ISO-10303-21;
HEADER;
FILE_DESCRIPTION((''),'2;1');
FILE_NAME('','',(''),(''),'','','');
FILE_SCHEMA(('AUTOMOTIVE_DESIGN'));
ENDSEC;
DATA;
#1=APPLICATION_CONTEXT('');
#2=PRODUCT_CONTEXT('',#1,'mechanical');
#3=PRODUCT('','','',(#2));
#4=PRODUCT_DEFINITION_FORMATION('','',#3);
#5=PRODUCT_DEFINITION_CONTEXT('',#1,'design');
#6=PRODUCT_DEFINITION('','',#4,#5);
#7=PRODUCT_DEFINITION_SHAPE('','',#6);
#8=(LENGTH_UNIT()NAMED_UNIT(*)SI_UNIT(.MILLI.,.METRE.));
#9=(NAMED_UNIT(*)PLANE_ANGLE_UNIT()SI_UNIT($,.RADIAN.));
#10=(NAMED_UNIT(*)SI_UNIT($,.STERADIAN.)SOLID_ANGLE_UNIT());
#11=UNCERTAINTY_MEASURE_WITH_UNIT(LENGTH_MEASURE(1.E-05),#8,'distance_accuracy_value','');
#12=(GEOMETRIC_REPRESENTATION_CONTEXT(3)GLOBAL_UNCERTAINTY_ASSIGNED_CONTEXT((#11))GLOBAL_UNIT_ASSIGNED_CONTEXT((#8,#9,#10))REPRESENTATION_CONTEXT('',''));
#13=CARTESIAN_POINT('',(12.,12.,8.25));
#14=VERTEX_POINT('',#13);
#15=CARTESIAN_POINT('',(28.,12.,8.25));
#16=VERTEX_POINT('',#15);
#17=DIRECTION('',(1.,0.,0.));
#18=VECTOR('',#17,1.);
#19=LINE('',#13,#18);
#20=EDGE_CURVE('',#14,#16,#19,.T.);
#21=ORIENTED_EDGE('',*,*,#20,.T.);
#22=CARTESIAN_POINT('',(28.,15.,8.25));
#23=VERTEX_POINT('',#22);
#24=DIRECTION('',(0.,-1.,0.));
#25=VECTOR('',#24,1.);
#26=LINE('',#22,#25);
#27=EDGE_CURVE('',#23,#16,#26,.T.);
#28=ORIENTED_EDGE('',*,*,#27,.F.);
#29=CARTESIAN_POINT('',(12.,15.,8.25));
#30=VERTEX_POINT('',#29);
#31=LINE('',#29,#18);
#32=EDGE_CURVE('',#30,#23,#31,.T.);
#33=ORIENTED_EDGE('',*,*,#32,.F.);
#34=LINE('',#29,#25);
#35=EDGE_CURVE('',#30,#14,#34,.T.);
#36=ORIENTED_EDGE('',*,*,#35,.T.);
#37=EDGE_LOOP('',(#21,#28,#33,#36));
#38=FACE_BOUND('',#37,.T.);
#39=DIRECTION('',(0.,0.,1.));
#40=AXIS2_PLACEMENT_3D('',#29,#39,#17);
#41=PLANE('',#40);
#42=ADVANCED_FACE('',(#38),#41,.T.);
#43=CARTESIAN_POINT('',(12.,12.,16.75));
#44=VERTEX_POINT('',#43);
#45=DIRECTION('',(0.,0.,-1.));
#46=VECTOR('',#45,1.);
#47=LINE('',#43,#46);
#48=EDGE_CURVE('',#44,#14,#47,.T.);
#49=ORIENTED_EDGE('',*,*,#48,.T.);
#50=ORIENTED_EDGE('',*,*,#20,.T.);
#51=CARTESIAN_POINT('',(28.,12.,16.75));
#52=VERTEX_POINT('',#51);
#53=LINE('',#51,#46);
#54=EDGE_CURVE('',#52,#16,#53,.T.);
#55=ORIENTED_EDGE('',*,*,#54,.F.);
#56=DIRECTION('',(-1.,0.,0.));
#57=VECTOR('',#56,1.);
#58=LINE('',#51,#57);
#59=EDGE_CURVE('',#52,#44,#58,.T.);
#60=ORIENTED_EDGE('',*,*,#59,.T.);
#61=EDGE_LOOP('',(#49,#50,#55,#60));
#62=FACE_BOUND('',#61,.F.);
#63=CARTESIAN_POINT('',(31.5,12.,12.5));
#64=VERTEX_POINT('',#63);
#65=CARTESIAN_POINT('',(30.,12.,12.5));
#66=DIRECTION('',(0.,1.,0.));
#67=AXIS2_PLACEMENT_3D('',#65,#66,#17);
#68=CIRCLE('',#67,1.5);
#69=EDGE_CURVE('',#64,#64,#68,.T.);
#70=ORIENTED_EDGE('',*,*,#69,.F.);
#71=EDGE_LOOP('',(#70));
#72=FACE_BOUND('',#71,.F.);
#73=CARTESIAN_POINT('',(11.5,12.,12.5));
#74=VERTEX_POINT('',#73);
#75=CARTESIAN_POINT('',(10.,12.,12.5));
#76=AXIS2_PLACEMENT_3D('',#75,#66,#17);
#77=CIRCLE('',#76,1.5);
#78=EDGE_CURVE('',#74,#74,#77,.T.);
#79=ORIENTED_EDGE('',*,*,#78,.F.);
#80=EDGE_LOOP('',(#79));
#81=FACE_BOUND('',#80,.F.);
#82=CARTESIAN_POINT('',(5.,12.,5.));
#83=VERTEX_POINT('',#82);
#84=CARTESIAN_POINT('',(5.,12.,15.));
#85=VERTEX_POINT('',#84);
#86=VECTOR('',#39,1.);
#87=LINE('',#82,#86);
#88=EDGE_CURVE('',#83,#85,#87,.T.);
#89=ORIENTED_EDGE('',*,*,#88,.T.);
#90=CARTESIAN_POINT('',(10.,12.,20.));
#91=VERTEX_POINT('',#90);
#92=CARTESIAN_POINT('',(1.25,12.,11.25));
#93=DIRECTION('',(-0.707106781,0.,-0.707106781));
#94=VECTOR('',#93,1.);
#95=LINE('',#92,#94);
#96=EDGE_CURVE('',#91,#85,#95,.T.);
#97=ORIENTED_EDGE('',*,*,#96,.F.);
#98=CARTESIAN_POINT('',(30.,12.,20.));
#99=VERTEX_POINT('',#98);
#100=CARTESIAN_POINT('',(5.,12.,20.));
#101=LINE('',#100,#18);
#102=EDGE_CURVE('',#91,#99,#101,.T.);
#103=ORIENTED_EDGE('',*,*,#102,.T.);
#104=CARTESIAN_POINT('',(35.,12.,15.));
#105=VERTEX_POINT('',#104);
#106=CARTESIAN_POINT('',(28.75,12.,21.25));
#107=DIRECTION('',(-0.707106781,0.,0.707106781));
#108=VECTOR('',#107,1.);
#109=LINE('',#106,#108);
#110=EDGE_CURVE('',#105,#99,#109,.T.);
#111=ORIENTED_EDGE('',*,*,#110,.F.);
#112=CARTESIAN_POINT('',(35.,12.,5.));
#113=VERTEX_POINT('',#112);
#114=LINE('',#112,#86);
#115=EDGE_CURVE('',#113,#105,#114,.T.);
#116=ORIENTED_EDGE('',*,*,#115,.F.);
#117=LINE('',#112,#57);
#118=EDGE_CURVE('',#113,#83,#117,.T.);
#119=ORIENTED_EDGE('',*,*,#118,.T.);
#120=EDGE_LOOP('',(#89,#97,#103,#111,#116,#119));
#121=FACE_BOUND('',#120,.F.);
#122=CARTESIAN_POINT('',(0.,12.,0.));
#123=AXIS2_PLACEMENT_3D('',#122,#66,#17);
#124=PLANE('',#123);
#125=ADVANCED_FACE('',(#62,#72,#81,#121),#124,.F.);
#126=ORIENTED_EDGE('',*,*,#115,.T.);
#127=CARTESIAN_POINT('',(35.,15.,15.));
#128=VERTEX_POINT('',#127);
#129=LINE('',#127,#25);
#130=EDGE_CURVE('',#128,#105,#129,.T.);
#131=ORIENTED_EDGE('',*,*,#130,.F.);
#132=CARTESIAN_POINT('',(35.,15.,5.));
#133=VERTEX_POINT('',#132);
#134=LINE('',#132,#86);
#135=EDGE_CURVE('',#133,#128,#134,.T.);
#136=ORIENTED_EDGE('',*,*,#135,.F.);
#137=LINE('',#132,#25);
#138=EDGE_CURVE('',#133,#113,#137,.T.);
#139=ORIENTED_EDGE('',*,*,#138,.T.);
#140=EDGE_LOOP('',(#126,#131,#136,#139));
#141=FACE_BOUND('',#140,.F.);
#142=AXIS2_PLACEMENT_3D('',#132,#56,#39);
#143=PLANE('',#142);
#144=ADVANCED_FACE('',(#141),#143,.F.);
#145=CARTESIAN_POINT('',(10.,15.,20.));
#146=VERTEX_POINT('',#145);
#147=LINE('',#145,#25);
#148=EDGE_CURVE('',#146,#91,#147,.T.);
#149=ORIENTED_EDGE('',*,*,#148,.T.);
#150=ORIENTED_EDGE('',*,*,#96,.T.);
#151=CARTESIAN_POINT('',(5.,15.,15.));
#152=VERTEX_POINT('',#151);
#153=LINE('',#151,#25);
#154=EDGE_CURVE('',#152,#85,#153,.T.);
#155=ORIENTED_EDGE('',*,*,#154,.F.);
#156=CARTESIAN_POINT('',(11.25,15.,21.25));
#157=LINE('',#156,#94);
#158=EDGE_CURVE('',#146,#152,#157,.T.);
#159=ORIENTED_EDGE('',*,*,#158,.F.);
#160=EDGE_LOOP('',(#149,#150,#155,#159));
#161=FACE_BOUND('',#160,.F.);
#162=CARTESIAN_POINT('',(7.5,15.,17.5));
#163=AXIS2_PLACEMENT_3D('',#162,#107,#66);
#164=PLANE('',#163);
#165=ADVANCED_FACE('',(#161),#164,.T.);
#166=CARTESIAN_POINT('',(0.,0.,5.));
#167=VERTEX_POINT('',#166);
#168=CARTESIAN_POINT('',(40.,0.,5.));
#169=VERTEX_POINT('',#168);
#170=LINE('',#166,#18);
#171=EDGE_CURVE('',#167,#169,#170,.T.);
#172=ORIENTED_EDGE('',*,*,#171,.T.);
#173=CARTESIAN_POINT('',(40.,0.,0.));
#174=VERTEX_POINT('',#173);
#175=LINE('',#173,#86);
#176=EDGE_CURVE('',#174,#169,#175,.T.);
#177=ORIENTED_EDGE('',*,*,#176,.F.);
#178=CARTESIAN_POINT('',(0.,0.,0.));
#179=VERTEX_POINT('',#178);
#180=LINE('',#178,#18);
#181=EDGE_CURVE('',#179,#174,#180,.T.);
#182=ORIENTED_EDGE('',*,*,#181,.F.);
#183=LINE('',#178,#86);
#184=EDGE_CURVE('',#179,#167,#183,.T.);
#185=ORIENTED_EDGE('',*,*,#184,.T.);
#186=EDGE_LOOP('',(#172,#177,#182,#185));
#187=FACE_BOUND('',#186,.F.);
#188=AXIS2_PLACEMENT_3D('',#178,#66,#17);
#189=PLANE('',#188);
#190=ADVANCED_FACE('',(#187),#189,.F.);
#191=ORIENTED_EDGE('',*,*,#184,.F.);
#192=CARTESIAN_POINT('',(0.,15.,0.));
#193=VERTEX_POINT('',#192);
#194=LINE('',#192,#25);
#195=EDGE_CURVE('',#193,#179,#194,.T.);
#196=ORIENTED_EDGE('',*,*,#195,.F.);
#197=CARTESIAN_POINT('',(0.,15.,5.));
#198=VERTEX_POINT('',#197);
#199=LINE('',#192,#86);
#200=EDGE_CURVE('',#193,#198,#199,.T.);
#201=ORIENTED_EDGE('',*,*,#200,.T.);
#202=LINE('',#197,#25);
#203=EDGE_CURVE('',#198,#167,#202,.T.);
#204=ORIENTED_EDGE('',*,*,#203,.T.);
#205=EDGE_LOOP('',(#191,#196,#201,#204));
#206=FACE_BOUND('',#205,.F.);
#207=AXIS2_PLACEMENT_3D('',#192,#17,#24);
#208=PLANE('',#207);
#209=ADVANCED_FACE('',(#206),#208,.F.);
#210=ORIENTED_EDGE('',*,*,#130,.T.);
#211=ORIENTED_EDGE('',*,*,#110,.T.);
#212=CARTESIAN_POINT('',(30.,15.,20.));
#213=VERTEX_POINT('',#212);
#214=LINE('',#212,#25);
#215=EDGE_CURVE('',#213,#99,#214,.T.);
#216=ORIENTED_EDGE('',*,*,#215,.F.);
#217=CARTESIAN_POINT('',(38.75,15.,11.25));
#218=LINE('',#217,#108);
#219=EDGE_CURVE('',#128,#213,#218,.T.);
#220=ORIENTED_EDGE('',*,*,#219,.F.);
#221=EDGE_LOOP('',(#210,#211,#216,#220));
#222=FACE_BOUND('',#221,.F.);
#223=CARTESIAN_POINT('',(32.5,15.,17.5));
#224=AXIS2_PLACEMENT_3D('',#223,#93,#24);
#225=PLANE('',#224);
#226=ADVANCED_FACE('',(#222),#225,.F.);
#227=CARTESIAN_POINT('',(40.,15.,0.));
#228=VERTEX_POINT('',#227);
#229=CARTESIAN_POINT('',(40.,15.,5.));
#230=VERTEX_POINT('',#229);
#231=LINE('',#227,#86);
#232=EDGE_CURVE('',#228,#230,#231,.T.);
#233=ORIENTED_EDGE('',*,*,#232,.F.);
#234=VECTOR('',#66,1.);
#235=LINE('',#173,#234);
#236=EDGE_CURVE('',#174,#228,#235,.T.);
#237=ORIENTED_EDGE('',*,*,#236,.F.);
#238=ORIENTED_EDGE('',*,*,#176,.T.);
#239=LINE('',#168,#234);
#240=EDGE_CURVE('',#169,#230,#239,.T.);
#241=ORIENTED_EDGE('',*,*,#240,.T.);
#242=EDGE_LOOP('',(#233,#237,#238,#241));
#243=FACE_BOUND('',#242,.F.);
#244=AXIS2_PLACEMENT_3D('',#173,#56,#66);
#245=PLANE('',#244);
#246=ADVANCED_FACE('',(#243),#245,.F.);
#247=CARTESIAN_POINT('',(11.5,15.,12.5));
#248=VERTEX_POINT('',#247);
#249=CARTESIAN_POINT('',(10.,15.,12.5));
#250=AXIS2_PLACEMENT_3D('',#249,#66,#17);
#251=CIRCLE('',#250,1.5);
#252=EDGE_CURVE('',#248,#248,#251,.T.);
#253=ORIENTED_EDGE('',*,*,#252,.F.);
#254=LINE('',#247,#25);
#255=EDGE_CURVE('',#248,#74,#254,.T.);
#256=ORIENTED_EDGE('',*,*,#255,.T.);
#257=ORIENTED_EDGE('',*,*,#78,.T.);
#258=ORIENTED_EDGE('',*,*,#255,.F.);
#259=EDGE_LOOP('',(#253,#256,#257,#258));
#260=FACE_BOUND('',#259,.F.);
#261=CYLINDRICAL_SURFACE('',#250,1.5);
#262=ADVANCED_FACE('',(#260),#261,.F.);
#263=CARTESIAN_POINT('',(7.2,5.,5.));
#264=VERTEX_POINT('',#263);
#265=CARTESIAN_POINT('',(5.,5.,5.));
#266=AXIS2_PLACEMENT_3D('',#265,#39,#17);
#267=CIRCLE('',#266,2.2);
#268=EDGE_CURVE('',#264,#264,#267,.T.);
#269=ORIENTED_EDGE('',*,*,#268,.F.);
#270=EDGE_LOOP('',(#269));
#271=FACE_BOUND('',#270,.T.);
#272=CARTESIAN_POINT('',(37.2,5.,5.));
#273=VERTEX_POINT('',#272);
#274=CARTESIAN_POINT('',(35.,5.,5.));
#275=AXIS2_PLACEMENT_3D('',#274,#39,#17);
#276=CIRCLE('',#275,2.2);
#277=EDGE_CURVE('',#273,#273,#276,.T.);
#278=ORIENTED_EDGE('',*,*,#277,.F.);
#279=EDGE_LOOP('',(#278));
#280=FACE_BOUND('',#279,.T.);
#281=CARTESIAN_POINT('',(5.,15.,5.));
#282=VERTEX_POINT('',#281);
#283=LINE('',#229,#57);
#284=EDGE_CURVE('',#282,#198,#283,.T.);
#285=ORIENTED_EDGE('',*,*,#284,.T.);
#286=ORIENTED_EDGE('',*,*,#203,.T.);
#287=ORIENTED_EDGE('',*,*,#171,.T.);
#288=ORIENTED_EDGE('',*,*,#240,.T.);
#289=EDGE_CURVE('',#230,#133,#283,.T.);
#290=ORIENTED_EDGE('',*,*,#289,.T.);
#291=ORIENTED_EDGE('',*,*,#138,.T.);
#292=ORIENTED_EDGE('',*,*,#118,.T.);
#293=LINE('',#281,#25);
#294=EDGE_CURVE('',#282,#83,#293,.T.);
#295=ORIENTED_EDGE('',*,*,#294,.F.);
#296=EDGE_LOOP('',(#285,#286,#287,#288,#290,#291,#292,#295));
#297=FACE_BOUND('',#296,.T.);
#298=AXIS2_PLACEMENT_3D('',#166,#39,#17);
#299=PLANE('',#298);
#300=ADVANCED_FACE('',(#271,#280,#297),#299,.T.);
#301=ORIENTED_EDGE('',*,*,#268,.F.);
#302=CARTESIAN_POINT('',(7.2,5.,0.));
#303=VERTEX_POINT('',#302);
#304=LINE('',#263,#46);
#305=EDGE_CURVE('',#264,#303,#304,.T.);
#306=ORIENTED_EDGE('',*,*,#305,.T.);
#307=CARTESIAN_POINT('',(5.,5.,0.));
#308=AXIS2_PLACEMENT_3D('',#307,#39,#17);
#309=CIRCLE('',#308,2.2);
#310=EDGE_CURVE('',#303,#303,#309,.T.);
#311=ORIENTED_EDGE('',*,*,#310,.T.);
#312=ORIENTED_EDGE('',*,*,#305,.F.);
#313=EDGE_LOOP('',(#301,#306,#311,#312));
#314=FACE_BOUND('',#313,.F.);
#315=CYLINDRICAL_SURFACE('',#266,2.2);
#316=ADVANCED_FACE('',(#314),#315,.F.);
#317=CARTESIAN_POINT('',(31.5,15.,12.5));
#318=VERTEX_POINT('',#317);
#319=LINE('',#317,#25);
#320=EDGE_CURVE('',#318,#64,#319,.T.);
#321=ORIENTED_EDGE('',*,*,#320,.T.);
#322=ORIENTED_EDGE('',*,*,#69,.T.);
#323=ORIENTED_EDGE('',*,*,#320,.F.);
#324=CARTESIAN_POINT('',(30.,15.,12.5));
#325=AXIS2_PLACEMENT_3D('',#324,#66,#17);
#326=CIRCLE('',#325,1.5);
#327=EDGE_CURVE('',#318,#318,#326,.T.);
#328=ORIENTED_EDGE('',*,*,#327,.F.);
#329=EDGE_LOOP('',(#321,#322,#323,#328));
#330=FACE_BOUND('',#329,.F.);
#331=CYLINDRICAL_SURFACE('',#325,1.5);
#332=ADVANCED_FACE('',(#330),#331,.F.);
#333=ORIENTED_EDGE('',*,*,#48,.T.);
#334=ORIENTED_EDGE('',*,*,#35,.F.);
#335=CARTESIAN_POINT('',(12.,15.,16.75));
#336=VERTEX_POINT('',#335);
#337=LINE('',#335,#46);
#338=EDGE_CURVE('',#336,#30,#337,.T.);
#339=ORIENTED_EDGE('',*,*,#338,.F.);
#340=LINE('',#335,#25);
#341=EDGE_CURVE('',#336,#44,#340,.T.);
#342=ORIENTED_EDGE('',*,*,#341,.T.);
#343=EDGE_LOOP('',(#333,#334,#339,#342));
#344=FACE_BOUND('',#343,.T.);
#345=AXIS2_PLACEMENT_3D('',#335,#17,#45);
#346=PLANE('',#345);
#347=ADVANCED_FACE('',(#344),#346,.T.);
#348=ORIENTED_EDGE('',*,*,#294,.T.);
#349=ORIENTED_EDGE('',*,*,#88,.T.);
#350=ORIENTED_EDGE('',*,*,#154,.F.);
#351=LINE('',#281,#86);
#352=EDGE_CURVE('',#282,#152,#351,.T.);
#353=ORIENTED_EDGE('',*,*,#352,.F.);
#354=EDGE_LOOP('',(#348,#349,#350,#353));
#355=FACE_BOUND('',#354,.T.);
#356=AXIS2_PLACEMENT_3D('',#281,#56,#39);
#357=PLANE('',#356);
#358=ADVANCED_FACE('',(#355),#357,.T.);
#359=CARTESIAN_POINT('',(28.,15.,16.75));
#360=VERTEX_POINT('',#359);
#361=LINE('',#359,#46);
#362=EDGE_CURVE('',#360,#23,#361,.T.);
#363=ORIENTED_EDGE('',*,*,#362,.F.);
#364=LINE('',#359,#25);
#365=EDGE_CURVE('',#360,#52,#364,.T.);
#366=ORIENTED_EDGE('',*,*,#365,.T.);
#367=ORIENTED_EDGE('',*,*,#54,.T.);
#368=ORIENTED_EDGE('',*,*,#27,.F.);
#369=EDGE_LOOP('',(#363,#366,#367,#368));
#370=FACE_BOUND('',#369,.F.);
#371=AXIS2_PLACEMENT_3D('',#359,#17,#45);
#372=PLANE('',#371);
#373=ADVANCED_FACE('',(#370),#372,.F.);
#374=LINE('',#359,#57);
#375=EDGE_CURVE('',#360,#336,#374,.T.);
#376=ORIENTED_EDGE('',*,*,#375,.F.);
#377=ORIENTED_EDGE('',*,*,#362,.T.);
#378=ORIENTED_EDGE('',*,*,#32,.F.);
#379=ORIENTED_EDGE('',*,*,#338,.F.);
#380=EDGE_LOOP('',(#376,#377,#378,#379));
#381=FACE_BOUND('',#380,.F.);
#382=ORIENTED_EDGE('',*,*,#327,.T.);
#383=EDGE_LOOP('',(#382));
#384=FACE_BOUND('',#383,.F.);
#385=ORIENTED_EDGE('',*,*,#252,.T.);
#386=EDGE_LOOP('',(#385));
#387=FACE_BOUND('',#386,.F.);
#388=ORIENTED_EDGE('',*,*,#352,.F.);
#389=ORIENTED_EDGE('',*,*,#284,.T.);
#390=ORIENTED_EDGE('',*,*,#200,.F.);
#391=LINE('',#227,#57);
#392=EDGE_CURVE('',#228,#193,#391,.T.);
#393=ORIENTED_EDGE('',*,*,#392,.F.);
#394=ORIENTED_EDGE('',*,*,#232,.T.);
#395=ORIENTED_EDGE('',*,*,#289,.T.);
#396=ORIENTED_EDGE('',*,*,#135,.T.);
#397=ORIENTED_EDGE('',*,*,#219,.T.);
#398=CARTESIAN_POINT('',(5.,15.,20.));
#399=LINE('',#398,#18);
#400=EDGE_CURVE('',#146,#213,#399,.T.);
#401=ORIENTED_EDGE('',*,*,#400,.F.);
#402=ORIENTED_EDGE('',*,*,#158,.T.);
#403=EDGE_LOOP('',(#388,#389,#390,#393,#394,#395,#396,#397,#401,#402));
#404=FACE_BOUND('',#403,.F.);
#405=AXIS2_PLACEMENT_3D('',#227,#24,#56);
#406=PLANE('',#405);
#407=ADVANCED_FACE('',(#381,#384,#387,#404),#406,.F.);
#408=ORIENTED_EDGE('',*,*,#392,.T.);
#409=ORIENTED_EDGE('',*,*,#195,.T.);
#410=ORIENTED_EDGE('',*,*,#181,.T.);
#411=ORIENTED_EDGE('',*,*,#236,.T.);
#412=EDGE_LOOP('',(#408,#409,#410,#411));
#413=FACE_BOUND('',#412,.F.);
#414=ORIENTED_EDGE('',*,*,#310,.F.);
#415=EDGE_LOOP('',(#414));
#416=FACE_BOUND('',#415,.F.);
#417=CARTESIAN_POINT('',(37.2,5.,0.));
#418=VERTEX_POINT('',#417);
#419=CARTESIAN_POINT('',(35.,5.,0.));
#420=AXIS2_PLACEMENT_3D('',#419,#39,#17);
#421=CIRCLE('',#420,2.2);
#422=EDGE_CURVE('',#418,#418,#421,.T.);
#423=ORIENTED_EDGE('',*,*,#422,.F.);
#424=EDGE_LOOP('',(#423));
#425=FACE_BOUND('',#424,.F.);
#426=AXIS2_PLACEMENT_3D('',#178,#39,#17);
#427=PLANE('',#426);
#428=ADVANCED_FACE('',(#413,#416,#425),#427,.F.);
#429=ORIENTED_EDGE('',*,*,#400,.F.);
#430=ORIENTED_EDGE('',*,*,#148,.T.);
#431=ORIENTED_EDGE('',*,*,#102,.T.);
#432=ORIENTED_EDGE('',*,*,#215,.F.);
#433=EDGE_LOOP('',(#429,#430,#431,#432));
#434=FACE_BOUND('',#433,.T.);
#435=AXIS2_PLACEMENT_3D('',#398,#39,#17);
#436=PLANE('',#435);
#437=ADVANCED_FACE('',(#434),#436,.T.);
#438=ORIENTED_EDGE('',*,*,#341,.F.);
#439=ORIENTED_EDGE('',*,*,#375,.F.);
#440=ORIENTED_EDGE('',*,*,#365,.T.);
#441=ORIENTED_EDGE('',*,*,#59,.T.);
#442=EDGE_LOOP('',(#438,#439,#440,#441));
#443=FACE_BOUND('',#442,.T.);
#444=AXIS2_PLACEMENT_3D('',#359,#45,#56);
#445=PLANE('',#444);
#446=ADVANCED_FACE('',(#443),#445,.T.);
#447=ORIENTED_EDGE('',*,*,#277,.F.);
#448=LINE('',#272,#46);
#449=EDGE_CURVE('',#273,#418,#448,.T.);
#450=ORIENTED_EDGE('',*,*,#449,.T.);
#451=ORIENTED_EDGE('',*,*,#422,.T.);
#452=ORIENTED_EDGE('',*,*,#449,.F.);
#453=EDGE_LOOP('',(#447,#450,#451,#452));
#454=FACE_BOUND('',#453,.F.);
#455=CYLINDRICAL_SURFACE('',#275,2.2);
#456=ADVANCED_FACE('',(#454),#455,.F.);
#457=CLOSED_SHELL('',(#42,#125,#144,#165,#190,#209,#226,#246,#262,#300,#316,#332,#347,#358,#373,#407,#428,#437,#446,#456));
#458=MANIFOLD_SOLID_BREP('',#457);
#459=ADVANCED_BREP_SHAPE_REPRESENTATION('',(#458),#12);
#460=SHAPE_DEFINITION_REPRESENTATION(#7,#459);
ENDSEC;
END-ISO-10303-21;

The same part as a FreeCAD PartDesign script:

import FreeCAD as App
import Part
import Sketcher

V = App.Vector


def edges_at(feature, points):
    """Names of the edges that pass closest to the given points."""
    edges = feature.Shape.Edges
    near = lambda p: min(range(len(edges)), key=lambda i: edges[i].distToShape(Part.Vertex(*p))[0])
    return sorted({f"Edge{near(p) + 1}" for p in points})


def add_polygon(sketch, points):
    """Adds a closed chain of lines whose ends are joined by coincident constraints."""
    first, n = sketch.GeometryCount, len(points)
    for a, b in zip(points, points[1:] + points[:1]):
        sketch.addGeometry(Part.LineSegment(App.Vector(*a, 0), App.Vector(*b, 0)), False)
    for i in range(n):
        sketch.addConstraint(Sketcher.Constraint("Coincident", first + i, 2, first + (i + 1) % n, 1))

doc = App.newDocument("Part")
body = doc.addObject("PartDesign::Body", "Body")

# Sketch on XY plane
sketch1 = doc.addObject("Sketcher::SketchObject", "Sketch")
body.addObject(sketch1)
sketch1.AttachmentSupport = (doc.XY_Plane, [""])
sketch1.MapMode = "FlatFace"
add_polygon(sketch1, [(0, 15), (0, 0), (40, 0), (40, 15)])  # lines 0-3
sketch1.addConstraint([
    Sketcher.Constraint("Vertical", 0),
    Sketcher.Constraint("Horizontal", 1),
    Sketcher.Constraint("Vertical", 2),
    Sketcher.Constraint("Horizontal", 3),
    Sketcher.Constraint("Coincident", 0, 2, -1, 1),
    Sketcher.Constraint("DistanceX", 1, 1, 1, 2, 40.0),
    Sketcher.Constraint("DistanceY", 0, 2, 0, 1, 15.0),
])
pad1 = doc.addObject("PartDesign::Pad", "Pad")
body.addObject(pad1)
pad1.Profile = sketch1
pad1.Length = 5

# Sketch on XZ plane
sketch2 = doc.addObject("Sketcher::SketchObject", "Sketch001")
body.addObject(sketch2)
sketch2.AttachmentSupport = (doc.XZ_Plane, [""])
sketch2.MapMode = "FlatFace"
sketch2.AttachmentOffset = App.Placement(V(0, 0, -15), App.Rotation())
add_polygon(sketch2, [(35, 20), (35, 5), (5, 5), (5, 20)])  # lines 0-3
sketch2.addGeometry(Part.Circle(V(10, 12.5, 0), V(0, 0, 1), 1.5), False)  # 4
add_polygon(sketch2, [(28, 8.2), (28, 16.8), (12, 16.8), (12, 8.2)])  # lines 5-8
sketch2.addGeometry(Part.Circle(V(30, 12.5, 0), V(0, 0, 1), 1.5), False)  # 9
sketch2.addConstraint([
    Sketcher.Constraint("Vertical", 0),
    Sketcher.Constraint("Horizontal", 1),
    Sketcher.Constraint("Vertical", 2),
    Sketcher.Constraint("Horizontal", 3),
    Sketcher.Constraint("Vertical", 5),
    Sketcher.Constraint("Horizontal", 6),
    Sketcher.Constraint("Vertical", 7),
    Sketcher.Constraint("Horizontal", 8),
    Sketcher.Constraint("Equal", 4, 9),
    Sketcher.Constraint("Horizontal", 4, 3, 9, 3),
    Sketcher.Constraint("Diameter", 4, 3.0),
    Sketcher.Constraint("DistanceX", 6, 2, 6, 1, 16.0),
    Sketcher.Constraint("DistanceY", 0, 2, 0, 1, 15.0),
    Sketcher.Constraint("DistanceY", 5, 1, 5, 2, 8.5),
    Sketcher.Constraint("DistanceY", -1, 1, 0, 2, 5.0),
    Sketcher.Constraint("DistanceX", -1, 1, 1, 2, 5.0),
    Sketcher.Constraint("DistanceX", 4, 3, 9, 3, 20.0),
    Sketcher.Constraint("DistanceX", 9, 3, 0, 2, 5.0),
    Sketcher.Constraint("DistanceX", 1, 2, 4, 3, 5.0),
    Sketcher.Constraint("DistanceX", 5, 2, 9, 3, 2.0),
    Sketcher.Constraint("DistanceY", 9, 3, 5, 2, 4.25),
    Sketcher.Constraint("DistanceY", 5, 2, 3, 2, 3.25),
])
pad2 = doc.addObject("PartDesign::Pad", "Pad001")
body.addObject(pad2)
pad2.Profile = sketch2
pad2.Length = 3

# Sketch on XY plane
sketch3 = doc.addObject("Sketcher::SketchObject", "Sketch002")
body.addObject(sketch3)
sketch3.AttachmentSupport = (doc.XY_Plane, [""])
sketch3.MapMode = "FlatFace"
sketch3.AttachmentOffset = App.Placement(V(0, 0, 5), App.Rotation())
sketch3.addGeometry([
    Part.Circle(V(35, 5, 0), V(0, 0, 1), 2.2),
    Part.Circle(V(5, 5, 0), V(0, 0, 1), 2.2),
], False)
sketch3.addConstraint([
    Sketcher.Constraint("Equal", 0, 1),
    Sketcher.Constraint("Horizontal", 0, 3, 1, 3),
    Sketcher.Constraint("Diameter", 0, 4.4),
    Sketcher.Constraint("DistanceY", -1, 1, 0, 3, 5.0),
    Sketcher.Constraint("DistanceX", -1, 1, 1, 3, 5.0),
    Sketcher.Constraint("DistanceX", -1, 1, 0, 3, 35.0),
])
pocket1 = doc.addObject("PartDesign::Pocket", "Pocket")
body.addObject(pocket1)
pocket1.Profile = sketch3
pocket1.Length = 10
doc.recompute()

chamfer = doc.addObject("PartDesign::Chamfer", "Chamfer")
body.addObject(chamfer)
chamfer.Base = (pocket1, edges_at(pocket1, [(5, 13.5, 20), (35, 13.5, 20)]))
chamfer.Size = 5

doc.recompute()
